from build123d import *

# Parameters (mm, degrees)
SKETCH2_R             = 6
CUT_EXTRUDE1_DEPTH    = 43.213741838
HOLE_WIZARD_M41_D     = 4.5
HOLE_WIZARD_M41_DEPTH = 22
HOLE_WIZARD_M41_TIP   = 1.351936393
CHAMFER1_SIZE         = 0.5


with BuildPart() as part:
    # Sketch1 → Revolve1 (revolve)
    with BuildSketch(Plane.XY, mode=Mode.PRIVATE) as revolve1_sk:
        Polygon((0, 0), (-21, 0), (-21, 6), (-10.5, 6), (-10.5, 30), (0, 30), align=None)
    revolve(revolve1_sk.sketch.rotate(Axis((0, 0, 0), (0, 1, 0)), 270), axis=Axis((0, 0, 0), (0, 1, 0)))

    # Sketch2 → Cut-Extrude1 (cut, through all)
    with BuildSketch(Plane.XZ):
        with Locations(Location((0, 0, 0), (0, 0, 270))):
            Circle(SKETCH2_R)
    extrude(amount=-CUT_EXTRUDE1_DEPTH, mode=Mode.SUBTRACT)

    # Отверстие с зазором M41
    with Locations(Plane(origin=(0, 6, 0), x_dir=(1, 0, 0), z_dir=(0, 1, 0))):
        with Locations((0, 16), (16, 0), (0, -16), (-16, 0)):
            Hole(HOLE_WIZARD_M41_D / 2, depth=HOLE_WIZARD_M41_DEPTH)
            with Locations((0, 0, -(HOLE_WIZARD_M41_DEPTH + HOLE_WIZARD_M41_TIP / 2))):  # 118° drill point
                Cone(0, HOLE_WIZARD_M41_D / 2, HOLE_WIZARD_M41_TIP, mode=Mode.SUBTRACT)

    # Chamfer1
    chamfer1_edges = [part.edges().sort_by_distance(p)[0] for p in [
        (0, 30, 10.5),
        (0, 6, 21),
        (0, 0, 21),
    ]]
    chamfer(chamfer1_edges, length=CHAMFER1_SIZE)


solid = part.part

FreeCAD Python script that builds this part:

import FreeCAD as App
import Part
import Sketcher
Q = App.Units.Quantity


def edges_at(feature, points):
    """Names of the edges that pass closest to the given points."""
    edges = feature.Shape.Edges
    near = lambda p: min(range(len(edges)), key=lambda i: edges[i].distToShape(Part.Vertex(*p))[0])
    return sorted({f"Edge{near(p) + 1}" for p in points})

doc = App.newDocument("Part")
body = doc.addObject("PartDesign::Body", "Body")

# Sketch on XY plane
sketch1 = body.newObject("Sketcher::SketchObject", "Sketch")
sketch1.AttachmentSupport = (doc.getObject("XY_Plane"), [""])
sketch1.MapMode = "FlatFace"
sketch1.addGeometry(Part.LineSegment(App.Vector(-21, 0, 0), App.Vector(0, 0, 0)), False)
sketch1.addGeometry(Part.LineSegment(App.Vector(0, 0, 0), App.Vector(0, 30, 0)), False)
sketch1.addGeometry(Part.LineSegment(App.Vector(0, 30, 0), App.Vector(-10, 30, 0)), False)
sketch1.addGeometry(Part.LineSegment(App.Vector(-10, 30, 0), App.Vector(-10, 6, 0)), False)
sketch1.addGeometry(Part.LineSegment(App.Vector(-10, 6, 0), App.Vector(-21, 6, 0)), False)
sketch1.addGeometry(Part.LineSegment(App.Vector(-21, 6, 0), App.Vector(-21, 0, 0)), False)
sketch1.addConstraint(Sketcher.Constraint("Coincident", 0, 2, 1, 1))
sketch1.addConstraint(Sketcher.Constraint("Coincident", 1, 2, 2, 1))
sketch1.addConstraint(Sketcher.Constraint("Coincident", 2, 2, 3, 1))
sketch1.addConstraint(Sketcher.Constraint("Coincident", 3, 2, 4, 1))
sketch1.addConstraint(Sketcher.Constraint("Coincident", 4, 2, 5, 1))
sketch1.addConstraint(Sketcher.Constraint("Coincident", 5, 2, 0, 1))
sketch1.addConstraint(Sketcher.Constraint("Horizontal", 0))
sketch1.addConstraint(Sketcher.Constraint("Vertical", 1))
sketch1.addConstraint(Sketcher.Constraint("Horizontal", 2))
sketch1.addConstraint(Sketcher.Constraint("Vertical", 3))
sketch1.addConstraint(Sketcher.Constraint("Horizontal", 4))
sketch1.addConstraint(Sketcher.Constraint("Vertical", 5))
sketch1.addConstraint(Sketcher.Constraint("Coincident", 0, 2, -1, 1))
sketch1.addConstraint(Sketcher.Constraint("Equal", 2, 4))
sketch1.addConstraint(Sketcher.Constraint("DistanceX", 0, 1, 0, 2, Q("21 mm")))
sketch1.addConstraint(Sketcher.Constraint("DistanceY", 1, 1, 1, 2, Q("30 mm")))
sketch1.addConstraint(Sketcher.Constraint("DistanceY", 3, 2, 3, 1, Q("24 mm")))
revolution = body.newObject("PartDesign::Revolution", "Revolution")
revolution.Profile = sketch1
revolution.ReferenceAxis = (sketch1, ["V_Axis"])
revolution.Angle = 360

# Sketch on XZ plane
sketch2 = body.newObject("Sketcher::SketchObject", "Sketch001")
sketch2.AttachmentSupport = (doc.getObject("XZ_Plane"), [""])
sketch2.MapMode = "FlatFace"
sketch2.addGeometry(Part.Circle(App.Vector(0, 0, 0), App.Vector(0, 0, 1), 6), False)
sketch2.addConstraint(Sketcher.Constraint("Coincident", 0, 3, -1, 1))
sketch2.addConstraint(Sketcher.Constraint("Diameter", 0, Q("12 mm")))
pocket1 = body.newObject("PartDesign::Pocket", "Pocket")
pocket1.Profile = sketch2
pocket1.Type = "ThroughAll"

# Sketch on XZ plane
sketch3 = body.newObject("Sketcher::SketchObject", "Sketch002")
sketch3.AttachmentSupport = (doc.getObject("XZ_Plane"), [""])
sketch3.MapMode = "FlatFace"
sketch3.AttachmentOffset = App.Placement(App.Vector(0, 0, -6), App.Rotation())
sketch3.addGeometry(Part.Circle(App.Vector(0, -16, 0), App.Vector(0, 0, 1), 2.2), False)
sketch3.addGeometry(Part.Circle(App.Vector(16, 0, 0), App.Vector(0, 0, 1), 2.2), False)
sketch3.addGeometry(Part.Circle(App.Vector(0, 16, 0), App.Vector(0, 0, 1), 2.2), False)
sketch3.addGeometry(Part.Circle(App.Vector(-16, 0, 0), App.Vector(0, 0, 1), 2.2), False)
sketch3.addConstraint(Sketcher.Constraint("Equal", 0, 1))
sketch3.addConstraint(Sketcher.Constraint("Equal", 1, 2))
sketch3.addConstraint(Sketcher.Constraint("Equal", 2, 3))
sketch3.addConstraint(Sketcher.Constraint("Symmetric", 0, 3, 2, 3, -1, 1))
sketch3.addConstraint(Sketcher.Constraint("Symmetric", 1, 3, 3, 3, -1, 1))
sketch3.addConstraint(Sketcher.Constraint("PointOnObject", 0, 3, -2))
sketch3.addConstraint(Sketcher.Constraint("PointOnObject", 1, 3, -1))
sketch3.addConstraint(Sketcher.Constraint("Diameter", 0, Q("4.5 mm")))
sketch3.addConstraint(Sketcher.Constraint("DistanceY", 0, 3, -1, 1, Q("16 mm")))
sketch3.addConstraint(Sketcher.Constraint("DistanceX", -1, 1, 1, 3, Q("16 mm")))
doc.recompute()
hole = body.newObject("PartDesign::Hole", "Hole")
hole.Profile = sketch3
hole.ThreadType = "None"
hole.Diameter = 4.5
hole.DepthType = "Dimension"
hole.Depth = 22
hole.DrillPoint = "Angled"
hole.DrillPointAngle = 118
hole.Reversed = True
doc.recompute()

chamfer = body.newObject("PartDesign::Chamfer", "Chamfer")
chamfer.Base = (hole, edges_at(hole, [(0, 30, 10.5), (0, 6, 21), (0, 0, 21)]))
chamfer.Size = 0.5

doc.recompute()
